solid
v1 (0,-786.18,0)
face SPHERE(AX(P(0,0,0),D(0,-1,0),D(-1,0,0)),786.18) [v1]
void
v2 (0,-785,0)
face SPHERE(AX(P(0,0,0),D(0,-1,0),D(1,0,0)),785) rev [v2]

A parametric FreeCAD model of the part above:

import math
import FreeCAD as App
import Part
import Sketcher
Q = App.Units.Quantity

doc = App.newDocument("Part")
body = doc.addObject("PartDesign::Body", "Body")

sketch1 = doc.addObject("Sketcher::SketchObject", "Sketch")
body.addObject(sketch1)
sketch1.AttachmentSupport = (doc.XY_Plane, [""])
sketch1.MapMode = "FlatFace"
sketch1.addGeometry(Part.LineSegment(App.Vector(0, 785, 0), App.Vector(0, 786.18, 0)), False)
sketch1.addGeometry(Part.ArcOfCircle(Part.Circle(App.Vector(0, 0, 0), App.Vector(0, 0, 1), 786.18), math.radians(90), math.radians(270)), False)
sketch1.addGeometry(Part.LineSegment(App.Vector(0, -786.18, 0), App.Vector(0, -785, 0)), False)
sketch1.addGeometry(Part.ArcOfCircle(Part.Circle(App.Vector(0, 0, 0), App.Vector(0, 0, 1), 785), math.radians(90), math.radians(270)), False)
sketch1.addConstraint(Sketcher.Constraint("Coincident", 0, 2, 1, 1))
sketch1.addConstraint(Sketcher.Constraint("Coincident", 1, 2, 2, 1))
sketch1.addConstraint(Sketcher.Constraint("Coincident", 2, 2, 3, 2))
sketch1.addConstraint(Sketcher.Constraint("Coincident", 3, 1, 0, 1))
sketch1.addConstraint(Sketcher.Constraint("Vertical", 0))
sketch1.addConstraint(Sketcher.Constraint("Vertical", 2))
sketch1.addConstraint(Sketcher.Constraint("Coincident", 1, 3, -1, 1))
sketch1.addConstraint(Sketcher.Constraint("Coincident", 3, 3, -1, 1))
sketch1.addConstraint(Sketcher.Constraint("PointOnObject", 0, 2, -2))
sketch1.addConstraint(Sketcher.Constraint("PointOnObject", 2, 2, -2))
sketch1.addConstraint(Sketcher.Constraint("Radius", 3, Q("785 mm")))
sketch1.addConstraint(Sketcher.Constraint("Radius", 1, Q("786.18 mm")))
revolution = doc.addObject("PartDesign::Revolution", "Revolution")
body.addObject(revolution)
revolution.Profile = sketch1
revolution.ReferenceAxis = (sketch1, ["V_Axis"])
revolution.Angle = 360

doc.recompute()
